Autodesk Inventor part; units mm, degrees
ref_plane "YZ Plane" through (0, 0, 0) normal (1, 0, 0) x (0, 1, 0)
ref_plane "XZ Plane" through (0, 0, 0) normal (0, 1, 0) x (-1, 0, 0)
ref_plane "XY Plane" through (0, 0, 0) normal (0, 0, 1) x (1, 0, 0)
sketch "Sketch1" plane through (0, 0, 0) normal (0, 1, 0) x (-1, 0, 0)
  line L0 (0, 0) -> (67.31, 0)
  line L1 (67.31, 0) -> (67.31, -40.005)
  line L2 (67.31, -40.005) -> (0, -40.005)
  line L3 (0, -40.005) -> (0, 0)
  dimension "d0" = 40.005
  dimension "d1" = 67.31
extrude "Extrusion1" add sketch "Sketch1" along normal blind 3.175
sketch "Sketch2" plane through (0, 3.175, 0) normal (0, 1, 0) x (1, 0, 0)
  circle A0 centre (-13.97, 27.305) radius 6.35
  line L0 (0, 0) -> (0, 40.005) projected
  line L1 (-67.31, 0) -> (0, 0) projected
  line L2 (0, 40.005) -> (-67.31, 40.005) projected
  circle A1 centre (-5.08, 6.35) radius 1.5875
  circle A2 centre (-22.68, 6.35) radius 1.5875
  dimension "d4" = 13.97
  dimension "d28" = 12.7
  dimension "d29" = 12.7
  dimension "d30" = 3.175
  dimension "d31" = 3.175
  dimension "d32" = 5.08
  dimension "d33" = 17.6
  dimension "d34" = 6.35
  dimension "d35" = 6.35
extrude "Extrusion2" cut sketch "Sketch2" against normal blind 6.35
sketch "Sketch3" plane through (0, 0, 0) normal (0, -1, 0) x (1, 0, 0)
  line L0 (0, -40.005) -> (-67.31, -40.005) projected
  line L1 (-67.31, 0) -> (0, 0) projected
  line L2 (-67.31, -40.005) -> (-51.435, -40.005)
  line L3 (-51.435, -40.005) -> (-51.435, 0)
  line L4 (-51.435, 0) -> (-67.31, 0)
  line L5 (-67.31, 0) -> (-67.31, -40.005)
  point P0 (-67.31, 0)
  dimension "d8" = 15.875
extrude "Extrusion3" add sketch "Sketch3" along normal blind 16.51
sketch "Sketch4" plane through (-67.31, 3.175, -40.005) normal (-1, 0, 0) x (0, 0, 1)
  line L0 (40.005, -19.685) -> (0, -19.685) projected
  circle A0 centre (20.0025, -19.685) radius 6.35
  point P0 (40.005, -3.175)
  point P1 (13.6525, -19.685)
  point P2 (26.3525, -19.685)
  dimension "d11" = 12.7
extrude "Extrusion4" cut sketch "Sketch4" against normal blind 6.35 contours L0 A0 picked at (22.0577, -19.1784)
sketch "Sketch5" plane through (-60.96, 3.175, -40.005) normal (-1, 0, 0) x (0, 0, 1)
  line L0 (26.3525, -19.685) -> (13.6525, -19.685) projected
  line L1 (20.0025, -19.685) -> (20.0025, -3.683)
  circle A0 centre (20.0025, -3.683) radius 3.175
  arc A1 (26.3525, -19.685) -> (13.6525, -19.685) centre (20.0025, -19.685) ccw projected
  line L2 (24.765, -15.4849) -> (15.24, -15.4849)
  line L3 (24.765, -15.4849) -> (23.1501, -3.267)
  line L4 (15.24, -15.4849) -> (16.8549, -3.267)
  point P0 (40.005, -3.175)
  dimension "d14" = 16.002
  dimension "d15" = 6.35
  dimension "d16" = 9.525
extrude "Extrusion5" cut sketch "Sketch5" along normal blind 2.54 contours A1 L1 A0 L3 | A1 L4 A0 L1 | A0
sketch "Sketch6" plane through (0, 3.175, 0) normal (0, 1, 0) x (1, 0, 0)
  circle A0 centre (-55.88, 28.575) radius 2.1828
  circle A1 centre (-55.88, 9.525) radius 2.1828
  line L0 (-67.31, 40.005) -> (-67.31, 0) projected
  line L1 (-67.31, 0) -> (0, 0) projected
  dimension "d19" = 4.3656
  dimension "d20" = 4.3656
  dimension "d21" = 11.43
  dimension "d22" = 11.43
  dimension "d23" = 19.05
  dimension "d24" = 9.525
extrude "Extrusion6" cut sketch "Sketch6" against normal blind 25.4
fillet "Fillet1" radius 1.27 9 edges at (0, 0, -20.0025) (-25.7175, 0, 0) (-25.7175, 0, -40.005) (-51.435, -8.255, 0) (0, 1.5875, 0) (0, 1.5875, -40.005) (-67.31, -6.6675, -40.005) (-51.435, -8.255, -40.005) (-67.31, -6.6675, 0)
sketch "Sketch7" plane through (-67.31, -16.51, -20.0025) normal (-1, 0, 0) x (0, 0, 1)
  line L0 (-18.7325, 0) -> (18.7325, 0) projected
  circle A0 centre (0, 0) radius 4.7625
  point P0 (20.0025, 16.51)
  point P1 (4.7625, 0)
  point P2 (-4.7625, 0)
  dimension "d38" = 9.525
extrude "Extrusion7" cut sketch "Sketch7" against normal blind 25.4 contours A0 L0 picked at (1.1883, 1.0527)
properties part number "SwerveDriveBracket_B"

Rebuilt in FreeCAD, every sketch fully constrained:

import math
import FreeCAD as App
import Part
import Sketcher

V = App.Vector
Q = App.Units.Quantity


def edges_at(feature, points):
    """Names of the edges that pass closest to the given points."""
    edges = feature.Shape.Edges
    near = lambda p: min(range(len(edges)), key=lambda i: edges[i].distToShape(Part.Vertex(*p))[0])
    return sorted({f"Edge{near(p) + 1}" for p in points})


def add_polygon(sketch, points):
    """Adds a closed chain of lines whose ends are joined by coincident constraints."""
    first, n = sketch.GeometryCount, len(points)
    for a, b in zip(points, points[1:] + points[:1]):
        sketch.addGeometry(Part.LineSegment(App.Vector(*a, 0), App.Vector(*b, 0)), False)
    for i in range(n):
        sketch.addConstraint(Sketcher.Constraint("Coincident", first + i, 2, first + (i + 1) % n, 1))

doc = App.newDocument("Part")
body = doc.addObject("PartDesign::Body", "Body")

sketch1 = body.newObject("Sketcher::SketchObject", "Sketch")
sketch1.AttachmentSupport = (doc.getObject("XZ_Plane"), [""])
sketch1.MapMode = "FlatFace"
add_polygon(sketch1, [(-67, 0), (0, 0), (0, -40), (-67, -40)])
sketch1.addConstraint([
    Sketcher.Constraint("Horizontal", 0),
    Sketcher.Constraint("Vertical", 1),
    Sketcher.Constraint("Horizontal", 2),
    Sketcher.Constraint("Vertical", 3),
    Sketcher.Constraint("Coincident", 0, 2, -1, 1),
    Sketcher.Constraint("DistanceX", 0, 1, 0, 2, Q("2.65 in")),
    Sketcher.Constraint("DistanceY", 1, 2, 1, 1, Q("1.575 in")),
])
pad1 = body.newObject("PartDesign::Pad", "Pad")
pad1.Profile = sketch1
pad1.Length = Q("0.125 in")
pad1.Reversed = True

sketch2 = body.newObject("Sketcher::SketchObject", "Sketch001")
sketch2.AttachmentSupport = (doc.getObject("XZ_Plane"), [""])
sketch2.MapMode = "FlatFace"
sketch2.AttachmentOffset = App.Placement(V(0, 0, -0.125 * 25.4), App.Rotation())
sketch2.addGeometry([
    Part.Circle(V(-14, -27.3, 0), V(0, 0, 1), 6.3),
    Part.Circle(V(-5.1, -6.3, 0), V(0, 0, 1), 1.6),
    Part.Circle(V(-22.7, -6.3, 0), V(0, 0, 1), 1.6),
], False)
sketch2.addConstraint([
    Sketcher.Constraint("Equal", 1, 2),
    Sketcher.Constraint("Horizontal", 1, 3, 2, 3),
    Sketcher.Constraint("Diameter", 0, Q("0.5 in")),
    Sketcher.Constraint("Diameter", 1, Q("0.125 in")),
    Sketcher.Constraint("DistanceX", 1, 3, -1, 1, Q("0.2 in")),
    Sketcher.Constraint("DistanceX", 0, 3, -1, 1, Q("0.55 in")),
    Sketcher.Constraint("DistanceY", 1, 3, -1, 1, Q("0.25 in")),
    Sketcher.Constraint("DistanceX", 2, 3, 1, 3, Q("17.6 mm")),
    Sketcher.Constraint("DistanceY", 0, 3, -1, 1, Q("1.075 in")),
])
pocket1 = body.newObject("PartDesign::Pocket", "Pocket")
pocket1.Profile = sketch2
pocket1.Length = Q("0.25 in")
pocket1.Reversed = True

sketch3 = body.newObject("Sketcher::SketchObject", "Sketch002")
sketch3.AttachmentSupport = (doc.getObject("XZ_Plane"), [""])
sketch3.MapMode = "FlatFace"
add_polygon(sketch3, [(-67, -40), (-51, -40), (-51, 0), (-67, 0)])
sketch3.addConstraint([
    Sketcher.Constraint("Horizontal", 0),
    Sketcher.Constraint("Vertical", 1),
    Sketcher.Constraint("Horizontal", 2),
    Sketcher.Constraint("Vertical", 3),
    Sketcher.Constraint("PointOnObject", 1, 2, -1),
    Sketcher.Constraint("DistanceX", 0, 1, 0, 2, Q("0.625 in")),
    Sketcher.Constraint("DistanceY", 1, 1, 1, 2, Q("1.575 in")),
    Sketcher.Constraint("DistanceX", 2, 2, -1, 1, Q("2.65 in")),
])
pad2 = body.newObject("PartDesign::Pad", "Pad001")
pad2.Profile = sketch3
pad2.Length = Q("0.65 in")

sketch4 = body.newObject("Sketcher::SketchObject", "Sketch003")
sketch4.AttachmentSupport = (doc.getObject("YZ_Plane"), [""])
sketch4.MapMode = "FlatFace"
sketch4.AttachmentOffset = App.Placement(V(0, 0, -2.65 * 25.4), App.Rotation())
sketch4.addGeometry([
    Part.LineSegment(V(-17, -26, 0), V(-17, -14, 0)),
    Part.ArcOfCircle(Part.Circle(V(-17, -20, 0), V(0, 0, 1), 6), math.radians(-90), math.radians(90)),
], False)
sketch4.addConstraint([
    Sketcher.Constraint("Coincident", 0, 1, 1, 1),
    Sketcher.Constraint("Coincident", 1, 2, 0, 2),
    Sketcher.Constraint("Vertical", 0),
    Sketcher.Constraint("Vertical", 1, 3, 0, 1),
    Sketcher.Constraint("Radius", 1, Q("0.25 in")),
    Sketcher.Constraint("DistanceX", 1, 3, -1, 1, Q("0.65 in")),
    Sketcher.Constraint("DistanceY", 1, 3, -1, 1, Q("0.7875 in")),
])
pocket2 = body.newObject("PartDesign::Pocket", "Pocket001")
pocket2.Profile = sketch4
pocket2.Length = Q("0.25 in")
pocket2.Reversed = True

sketch5 = body.newObject("Sketcher::SketchObject", "Sketch004")
sketch5.AttachmentSupport = (doc.getObject("YZ_Plane"), [""])
sketch5.MapMode = "FlatFace"
sketch5.AttachmentOffset = App.Placement(V(0, 0, -2.4 * 25.4), App.Rotation())
sketch5.addGeometry([
    Part.LineSegment(V(-12.3, -15.2, 0), V(-0.1, -16.9, 0)),
    Part.ArcOfCircle(Part.Circle(V(-0.5, -20, 0), V(0, 0, 1), 3.2), math.radians(-82), math.radians(82)),
    Part.LineSegment(V(-0.1, -23.2, 0), V(-12.3, -24.8, 0)),
    Part.ArcOfCircle(Part.Circle(V(-16.5, -20, 0), V(0, 0, 1), 6.3), math.radians(-49), math.radians(49)),
], False)
sketch5.addConstraint([
    Sketcher.Constraint("Tangent", 0, 2, 1, 2),
    Sketcher.Constraint("Tangent", 1, 1, 2, 1),
    Sketcher.Constraint("Coincident", 2, 2, 3, 1),
    Sketcher.Constraint("Coincident", 3, 2, 0, 1),
    Sketcher.Constraint("Horizontal", 1, 3, 3, 3),
    Sketcher.Constraint("Vertical", 0, 2, 1, 1),
    Sketcher.Constraint("Radius", 3, Q("0.25 in")),
    Sketcher.Constraint("Radius", 1, Q("0.125 in")),
    Sketcher.Constraint("DistanceX", 3, 3, 1, 3, Q("0.63 in")),
    Sketcher.Constraint("DistanceY", 2, 2, 3, 2, Q("0.375 in")),
    Sketcher.Constraint("DistanceY", 3, 2, -1, 1, Q("0.6 in")),
    Sketcher.Constraint("DistanceX", 1, 3, -1, 1, Q("0.02 in")),
])
pocket3 = body.newObject("PartDesign::Pocket", "Pocket002")
pocket3.Profile = sketch5
pocket3.Length = Q("0.1 in")

sketch6 = body.newObject("Sketcher::SketchObject", "Sketch005")
sketch6.AttachmentSupport = (doc.getObject("XZ_Plane"), [""])
sketch6.MapMode = "FlatFace"
sketch6.AttachmentOffset = App.Placement(V(0, 0, -0.125 * 25.4), App.Rotation())
sketch6.addGeometry([
    Part.Circle(V(-55.9, -28.6, 0), V(0, 0, 1), 2.2),
    Part.Circle(V(-55.9, -9.5, 0), V(0, 0, 1), 2.2),
], False)
sketch6.addConstraint([
    Sketcher.Constraint("Equal", 0, 1),
    Sketcher.Constraint("Vertical", 0, 3, 1, 3),
    Sketcher.Constraint("Diameter", 0, Q("0.171874 in")),
    Sketcher.Constraint("DistanceY", 0, 3, 1, 3, Q("0.75 in")),
    Sketcher.Constraint("DistanceY", 1, 3, -1, 1, Q("0.375 in")),
    Sketcher.Constraint("DistanceX", 0, 3, -1, 1, Q("2.2 in")),
])
pocket4 = body.newObject("PartDesign::Pocket", "Pocket003")
pocket4.Profile = sketch6
pocket4.Length = Q("1 in")
pocket4.Reversed = True
doc.recompute()

fillet = body.newObject("PartDesign::Fillet", "Fillet")
fillet.Base = (pocket4, edges_at(pocket4, [
    (0, 0, -20.003),
    (-25.718, 0, 0),
    (-25.718, 0, -40.005),
    (-51.435, -8.255, 0),
    (0, 1.587, 0),
    (0, 1.587, -40.005),
    (-67.31, -6.668, -40.005),
    (-51.435, -8.255, -40.005),
    (-67.31, -6.668, 0),
]))
fillet.Radius = Q("0.05 in")

sketch7 = body.newObject("Sketcher::SketchObject", "Sketch006")
sketch7.AttachmentSupport = (doc.getObject("YZ_Plane"), [""])
sketch7.MapMode = "FlatFace"
sketch7.AttachmentOffset = App.Placement(V(0, 0, -2.65 * 25.4), App.Rotation())
sketch7.addGeometry([
    Part.ArcOfCircle(Part.Circle(V(-16.5, -20, 0), V(0, 0, 1), 4.8), math.radians(-90), math.radians(90)),
    Part.LineSegment(V(-16.5, -24.8, 0), V(-16.5, -15.2, 0)),
], False)
sketch7.addConstraint([
    Sketcher.Constraint("Coincident", 0, 1, 1, 1),
    Sketcher.Constraint("Coincident", 1, 2, 0, 2),
    Sketcher.Constraint("Vertical", 1),
    Sketcher.Constraint("Radius", 0, Q("0.1875 in")),
    Sketcher.Constraint("DistanceY", 1, 2, -1, 1, Q("0.6 in")),
    Sketcher.Constraint("DistanceX", 0, 3, -1, 1, Q("0.65 in")),
    Sketcher.Constraint("DistanceX", 0, 1, -1, 1, Q("0.65 in")),
])
pocket5 = body.newObject("PartDesign::Pocket", "Pocket004")
pocket5.Profile = sketch7
pocket5.Length = Q("1 in")
pocket5.Reversed = True

doc.recompute()
